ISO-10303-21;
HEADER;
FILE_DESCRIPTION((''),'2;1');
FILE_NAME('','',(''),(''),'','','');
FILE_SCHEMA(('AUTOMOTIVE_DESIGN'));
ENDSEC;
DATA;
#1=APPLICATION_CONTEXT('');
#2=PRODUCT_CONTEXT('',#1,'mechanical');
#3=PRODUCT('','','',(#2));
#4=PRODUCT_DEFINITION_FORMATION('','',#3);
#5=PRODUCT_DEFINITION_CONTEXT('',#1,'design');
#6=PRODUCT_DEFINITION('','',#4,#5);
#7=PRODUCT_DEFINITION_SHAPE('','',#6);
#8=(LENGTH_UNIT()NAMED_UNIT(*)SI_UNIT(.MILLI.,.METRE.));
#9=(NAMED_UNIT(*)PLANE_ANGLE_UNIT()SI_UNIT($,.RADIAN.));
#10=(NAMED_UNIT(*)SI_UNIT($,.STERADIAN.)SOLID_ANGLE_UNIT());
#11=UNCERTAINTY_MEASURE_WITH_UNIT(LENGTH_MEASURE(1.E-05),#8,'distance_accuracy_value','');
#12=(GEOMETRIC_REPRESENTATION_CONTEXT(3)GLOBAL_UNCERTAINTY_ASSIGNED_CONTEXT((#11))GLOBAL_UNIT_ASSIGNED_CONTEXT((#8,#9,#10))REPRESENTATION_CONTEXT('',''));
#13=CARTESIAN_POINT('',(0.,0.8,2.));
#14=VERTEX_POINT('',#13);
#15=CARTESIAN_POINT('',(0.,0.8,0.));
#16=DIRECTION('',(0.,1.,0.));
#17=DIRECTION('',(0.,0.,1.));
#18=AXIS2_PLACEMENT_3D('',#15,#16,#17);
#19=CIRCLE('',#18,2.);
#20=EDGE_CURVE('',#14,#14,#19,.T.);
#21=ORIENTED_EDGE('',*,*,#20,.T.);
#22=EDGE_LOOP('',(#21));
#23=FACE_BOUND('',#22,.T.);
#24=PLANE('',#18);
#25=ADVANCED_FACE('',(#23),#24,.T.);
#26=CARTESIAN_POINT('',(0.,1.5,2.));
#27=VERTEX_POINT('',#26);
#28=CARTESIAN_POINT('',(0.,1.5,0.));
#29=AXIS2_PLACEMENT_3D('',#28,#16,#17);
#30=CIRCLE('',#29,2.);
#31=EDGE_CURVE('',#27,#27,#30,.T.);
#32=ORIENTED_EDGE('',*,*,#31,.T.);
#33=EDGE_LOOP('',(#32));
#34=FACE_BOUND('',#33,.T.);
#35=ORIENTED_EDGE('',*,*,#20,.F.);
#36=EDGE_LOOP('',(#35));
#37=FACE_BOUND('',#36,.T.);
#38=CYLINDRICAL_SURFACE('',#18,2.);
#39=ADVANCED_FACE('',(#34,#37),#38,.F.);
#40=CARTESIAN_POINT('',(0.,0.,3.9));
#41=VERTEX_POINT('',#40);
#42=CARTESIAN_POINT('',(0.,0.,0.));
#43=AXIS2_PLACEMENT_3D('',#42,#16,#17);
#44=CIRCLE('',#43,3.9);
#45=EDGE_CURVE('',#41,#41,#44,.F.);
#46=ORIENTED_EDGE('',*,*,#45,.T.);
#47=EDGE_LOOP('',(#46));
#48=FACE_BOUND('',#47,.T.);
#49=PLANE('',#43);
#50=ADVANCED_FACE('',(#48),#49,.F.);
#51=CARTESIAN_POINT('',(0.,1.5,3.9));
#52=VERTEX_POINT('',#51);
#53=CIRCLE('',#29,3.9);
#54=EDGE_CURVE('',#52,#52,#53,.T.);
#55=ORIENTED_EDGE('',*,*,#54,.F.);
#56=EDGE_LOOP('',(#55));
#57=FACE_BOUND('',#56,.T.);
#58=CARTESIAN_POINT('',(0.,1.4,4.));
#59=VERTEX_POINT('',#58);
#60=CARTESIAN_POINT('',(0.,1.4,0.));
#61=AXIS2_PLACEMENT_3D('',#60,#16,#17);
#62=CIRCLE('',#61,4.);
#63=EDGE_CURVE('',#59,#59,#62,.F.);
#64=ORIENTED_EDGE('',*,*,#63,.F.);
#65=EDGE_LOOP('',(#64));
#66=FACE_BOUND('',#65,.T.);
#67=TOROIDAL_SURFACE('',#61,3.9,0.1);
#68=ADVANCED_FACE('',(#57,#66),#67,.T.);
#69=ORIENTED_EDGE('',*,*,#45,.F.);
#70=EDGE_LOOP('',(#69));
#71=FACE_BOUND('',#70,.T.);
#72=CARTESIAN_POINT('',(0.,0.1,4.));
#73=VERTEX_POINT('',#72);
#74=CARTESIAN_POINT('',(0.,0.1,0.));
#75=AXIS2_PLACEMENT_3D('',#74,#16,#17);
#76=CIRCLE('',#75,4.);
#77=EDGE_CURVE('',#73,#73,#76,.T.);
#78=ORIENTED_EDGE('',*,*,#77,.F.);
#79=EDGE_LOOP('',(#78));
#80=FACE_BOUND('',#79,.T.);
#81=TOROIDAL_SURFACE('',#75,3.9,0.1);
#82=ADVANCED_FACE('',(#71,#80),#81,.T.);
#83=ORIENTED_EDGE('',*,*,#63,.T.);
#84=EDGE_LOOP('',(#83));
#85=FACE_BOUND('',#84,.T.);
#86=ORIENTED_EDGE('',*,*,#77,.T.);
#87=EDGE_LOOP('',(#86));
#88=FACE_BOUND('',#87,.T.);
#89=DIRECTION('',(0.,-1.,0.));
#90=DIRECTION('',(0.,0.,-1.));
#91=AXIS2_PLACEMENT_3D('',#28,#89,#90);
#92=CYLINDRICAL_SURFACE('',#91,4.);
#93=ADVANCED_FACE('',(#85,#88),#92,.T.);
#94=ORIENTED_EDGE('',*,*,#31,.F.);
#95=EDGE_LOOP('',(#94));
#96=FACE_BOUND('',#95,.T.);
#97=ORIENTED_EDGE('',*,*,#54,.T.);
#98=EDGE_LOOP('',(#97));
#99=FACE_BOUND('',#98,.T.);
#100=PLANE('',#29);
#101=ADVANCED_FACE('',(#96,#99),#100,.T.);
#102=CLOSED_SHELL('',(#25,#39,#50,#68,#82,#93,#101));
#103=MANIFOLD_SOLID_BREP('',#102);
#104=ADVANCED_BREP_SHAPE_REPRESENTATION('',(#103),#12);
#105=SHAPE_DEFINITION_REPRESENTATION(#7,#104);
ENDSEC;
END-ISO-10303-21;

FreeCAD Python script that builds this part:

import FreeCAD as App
import Part
import Sketcher

V = App.Vector
Q = App.Units.Quantity


def edges_at(feature, points):
    """Names of the edges that pass closest to the given points."""
    edges = feature.Shape.Edges
    near = lambda p: min(range(len(edges)), key=lambda i: edges[i].distToShape(Part.Vertex(*p))[0])
    return sorted({f"Edge{near(p) + 1}" for p in points})

doc = App.newDocument("Part")
body = doc.addObject("PartDesign::Body", "Body")

sketch1 = doc.addObject("Sketcher::SketchObject", "Sketch")
body.addObject(sketch1)
sketch1.AttachmentSupport = (doc.XZ_Plane, [""])
sketch1.MapMode = "FlatFace"
sketch1.addGeometry(Part.Circle(V(0, 0, 0), V(0, 0, 1), 4), False)
sketch1.addConstraint([
    Sketcher.Constraint("Coincident", 0, 3, -1, 1),
    Sketcher.Constraint("Diameter", 0, Q("8 mm")),
])
pad1 = doc.addObject("PartDesign::Pad", "Pad")
body.addObject(pad1)
pad1.Profile = sketch1
pad1.Length = 1.5
pad1.Reversed = True

sketch2 = doc.addObject("Sketcher::SketchObject", "Sketch001")
body.addObject(sketch2)
sketch2.AttachmentSupport = (doc.XZ_Plane, [""])
sketch2.MapMode = "FlatFace"
sketch2.AttachmentOffset = App.Placement(V(0, 0, -1.5), App.Rotation())
sketch2.addGeometry(Part.Circle(V(0, 0, 0), V(0, 0, 1), 2), False)
sketch2.addConstraint([
    Sketcher.Constraint("Coincident", 0, 3, -1, 1),
    Sketcher.Constraint("Diameter", 0, Q("4 mm")),
])
pocket1 = doc.addObject("PartDesign::Pocket", "Pocket")
body.addObject(pocket1)
pocket1.Profile = sketch2
pocket1.Length = 0.7
pocket1.Reversed = True
doc.recompute()

fillet = doc.addObject("PartDesign::Fillet", "Fillet")
body.addObject(fillet)
fillet.Base = (pocket1, edges_at(pocket1, [(-4, 0, 0)]))
fillet.Radius = 0.1
doc.recompute()

fillet2 = doc.addObject("PartDesign::Fillet", "Fillet001")
body.addObject(fillet2)
fillet2.Base = (fillet, edges_at(fillet, [(-4, 1.5, 0)]))
fillet2.Radius = 0.1

doc.recompute()
